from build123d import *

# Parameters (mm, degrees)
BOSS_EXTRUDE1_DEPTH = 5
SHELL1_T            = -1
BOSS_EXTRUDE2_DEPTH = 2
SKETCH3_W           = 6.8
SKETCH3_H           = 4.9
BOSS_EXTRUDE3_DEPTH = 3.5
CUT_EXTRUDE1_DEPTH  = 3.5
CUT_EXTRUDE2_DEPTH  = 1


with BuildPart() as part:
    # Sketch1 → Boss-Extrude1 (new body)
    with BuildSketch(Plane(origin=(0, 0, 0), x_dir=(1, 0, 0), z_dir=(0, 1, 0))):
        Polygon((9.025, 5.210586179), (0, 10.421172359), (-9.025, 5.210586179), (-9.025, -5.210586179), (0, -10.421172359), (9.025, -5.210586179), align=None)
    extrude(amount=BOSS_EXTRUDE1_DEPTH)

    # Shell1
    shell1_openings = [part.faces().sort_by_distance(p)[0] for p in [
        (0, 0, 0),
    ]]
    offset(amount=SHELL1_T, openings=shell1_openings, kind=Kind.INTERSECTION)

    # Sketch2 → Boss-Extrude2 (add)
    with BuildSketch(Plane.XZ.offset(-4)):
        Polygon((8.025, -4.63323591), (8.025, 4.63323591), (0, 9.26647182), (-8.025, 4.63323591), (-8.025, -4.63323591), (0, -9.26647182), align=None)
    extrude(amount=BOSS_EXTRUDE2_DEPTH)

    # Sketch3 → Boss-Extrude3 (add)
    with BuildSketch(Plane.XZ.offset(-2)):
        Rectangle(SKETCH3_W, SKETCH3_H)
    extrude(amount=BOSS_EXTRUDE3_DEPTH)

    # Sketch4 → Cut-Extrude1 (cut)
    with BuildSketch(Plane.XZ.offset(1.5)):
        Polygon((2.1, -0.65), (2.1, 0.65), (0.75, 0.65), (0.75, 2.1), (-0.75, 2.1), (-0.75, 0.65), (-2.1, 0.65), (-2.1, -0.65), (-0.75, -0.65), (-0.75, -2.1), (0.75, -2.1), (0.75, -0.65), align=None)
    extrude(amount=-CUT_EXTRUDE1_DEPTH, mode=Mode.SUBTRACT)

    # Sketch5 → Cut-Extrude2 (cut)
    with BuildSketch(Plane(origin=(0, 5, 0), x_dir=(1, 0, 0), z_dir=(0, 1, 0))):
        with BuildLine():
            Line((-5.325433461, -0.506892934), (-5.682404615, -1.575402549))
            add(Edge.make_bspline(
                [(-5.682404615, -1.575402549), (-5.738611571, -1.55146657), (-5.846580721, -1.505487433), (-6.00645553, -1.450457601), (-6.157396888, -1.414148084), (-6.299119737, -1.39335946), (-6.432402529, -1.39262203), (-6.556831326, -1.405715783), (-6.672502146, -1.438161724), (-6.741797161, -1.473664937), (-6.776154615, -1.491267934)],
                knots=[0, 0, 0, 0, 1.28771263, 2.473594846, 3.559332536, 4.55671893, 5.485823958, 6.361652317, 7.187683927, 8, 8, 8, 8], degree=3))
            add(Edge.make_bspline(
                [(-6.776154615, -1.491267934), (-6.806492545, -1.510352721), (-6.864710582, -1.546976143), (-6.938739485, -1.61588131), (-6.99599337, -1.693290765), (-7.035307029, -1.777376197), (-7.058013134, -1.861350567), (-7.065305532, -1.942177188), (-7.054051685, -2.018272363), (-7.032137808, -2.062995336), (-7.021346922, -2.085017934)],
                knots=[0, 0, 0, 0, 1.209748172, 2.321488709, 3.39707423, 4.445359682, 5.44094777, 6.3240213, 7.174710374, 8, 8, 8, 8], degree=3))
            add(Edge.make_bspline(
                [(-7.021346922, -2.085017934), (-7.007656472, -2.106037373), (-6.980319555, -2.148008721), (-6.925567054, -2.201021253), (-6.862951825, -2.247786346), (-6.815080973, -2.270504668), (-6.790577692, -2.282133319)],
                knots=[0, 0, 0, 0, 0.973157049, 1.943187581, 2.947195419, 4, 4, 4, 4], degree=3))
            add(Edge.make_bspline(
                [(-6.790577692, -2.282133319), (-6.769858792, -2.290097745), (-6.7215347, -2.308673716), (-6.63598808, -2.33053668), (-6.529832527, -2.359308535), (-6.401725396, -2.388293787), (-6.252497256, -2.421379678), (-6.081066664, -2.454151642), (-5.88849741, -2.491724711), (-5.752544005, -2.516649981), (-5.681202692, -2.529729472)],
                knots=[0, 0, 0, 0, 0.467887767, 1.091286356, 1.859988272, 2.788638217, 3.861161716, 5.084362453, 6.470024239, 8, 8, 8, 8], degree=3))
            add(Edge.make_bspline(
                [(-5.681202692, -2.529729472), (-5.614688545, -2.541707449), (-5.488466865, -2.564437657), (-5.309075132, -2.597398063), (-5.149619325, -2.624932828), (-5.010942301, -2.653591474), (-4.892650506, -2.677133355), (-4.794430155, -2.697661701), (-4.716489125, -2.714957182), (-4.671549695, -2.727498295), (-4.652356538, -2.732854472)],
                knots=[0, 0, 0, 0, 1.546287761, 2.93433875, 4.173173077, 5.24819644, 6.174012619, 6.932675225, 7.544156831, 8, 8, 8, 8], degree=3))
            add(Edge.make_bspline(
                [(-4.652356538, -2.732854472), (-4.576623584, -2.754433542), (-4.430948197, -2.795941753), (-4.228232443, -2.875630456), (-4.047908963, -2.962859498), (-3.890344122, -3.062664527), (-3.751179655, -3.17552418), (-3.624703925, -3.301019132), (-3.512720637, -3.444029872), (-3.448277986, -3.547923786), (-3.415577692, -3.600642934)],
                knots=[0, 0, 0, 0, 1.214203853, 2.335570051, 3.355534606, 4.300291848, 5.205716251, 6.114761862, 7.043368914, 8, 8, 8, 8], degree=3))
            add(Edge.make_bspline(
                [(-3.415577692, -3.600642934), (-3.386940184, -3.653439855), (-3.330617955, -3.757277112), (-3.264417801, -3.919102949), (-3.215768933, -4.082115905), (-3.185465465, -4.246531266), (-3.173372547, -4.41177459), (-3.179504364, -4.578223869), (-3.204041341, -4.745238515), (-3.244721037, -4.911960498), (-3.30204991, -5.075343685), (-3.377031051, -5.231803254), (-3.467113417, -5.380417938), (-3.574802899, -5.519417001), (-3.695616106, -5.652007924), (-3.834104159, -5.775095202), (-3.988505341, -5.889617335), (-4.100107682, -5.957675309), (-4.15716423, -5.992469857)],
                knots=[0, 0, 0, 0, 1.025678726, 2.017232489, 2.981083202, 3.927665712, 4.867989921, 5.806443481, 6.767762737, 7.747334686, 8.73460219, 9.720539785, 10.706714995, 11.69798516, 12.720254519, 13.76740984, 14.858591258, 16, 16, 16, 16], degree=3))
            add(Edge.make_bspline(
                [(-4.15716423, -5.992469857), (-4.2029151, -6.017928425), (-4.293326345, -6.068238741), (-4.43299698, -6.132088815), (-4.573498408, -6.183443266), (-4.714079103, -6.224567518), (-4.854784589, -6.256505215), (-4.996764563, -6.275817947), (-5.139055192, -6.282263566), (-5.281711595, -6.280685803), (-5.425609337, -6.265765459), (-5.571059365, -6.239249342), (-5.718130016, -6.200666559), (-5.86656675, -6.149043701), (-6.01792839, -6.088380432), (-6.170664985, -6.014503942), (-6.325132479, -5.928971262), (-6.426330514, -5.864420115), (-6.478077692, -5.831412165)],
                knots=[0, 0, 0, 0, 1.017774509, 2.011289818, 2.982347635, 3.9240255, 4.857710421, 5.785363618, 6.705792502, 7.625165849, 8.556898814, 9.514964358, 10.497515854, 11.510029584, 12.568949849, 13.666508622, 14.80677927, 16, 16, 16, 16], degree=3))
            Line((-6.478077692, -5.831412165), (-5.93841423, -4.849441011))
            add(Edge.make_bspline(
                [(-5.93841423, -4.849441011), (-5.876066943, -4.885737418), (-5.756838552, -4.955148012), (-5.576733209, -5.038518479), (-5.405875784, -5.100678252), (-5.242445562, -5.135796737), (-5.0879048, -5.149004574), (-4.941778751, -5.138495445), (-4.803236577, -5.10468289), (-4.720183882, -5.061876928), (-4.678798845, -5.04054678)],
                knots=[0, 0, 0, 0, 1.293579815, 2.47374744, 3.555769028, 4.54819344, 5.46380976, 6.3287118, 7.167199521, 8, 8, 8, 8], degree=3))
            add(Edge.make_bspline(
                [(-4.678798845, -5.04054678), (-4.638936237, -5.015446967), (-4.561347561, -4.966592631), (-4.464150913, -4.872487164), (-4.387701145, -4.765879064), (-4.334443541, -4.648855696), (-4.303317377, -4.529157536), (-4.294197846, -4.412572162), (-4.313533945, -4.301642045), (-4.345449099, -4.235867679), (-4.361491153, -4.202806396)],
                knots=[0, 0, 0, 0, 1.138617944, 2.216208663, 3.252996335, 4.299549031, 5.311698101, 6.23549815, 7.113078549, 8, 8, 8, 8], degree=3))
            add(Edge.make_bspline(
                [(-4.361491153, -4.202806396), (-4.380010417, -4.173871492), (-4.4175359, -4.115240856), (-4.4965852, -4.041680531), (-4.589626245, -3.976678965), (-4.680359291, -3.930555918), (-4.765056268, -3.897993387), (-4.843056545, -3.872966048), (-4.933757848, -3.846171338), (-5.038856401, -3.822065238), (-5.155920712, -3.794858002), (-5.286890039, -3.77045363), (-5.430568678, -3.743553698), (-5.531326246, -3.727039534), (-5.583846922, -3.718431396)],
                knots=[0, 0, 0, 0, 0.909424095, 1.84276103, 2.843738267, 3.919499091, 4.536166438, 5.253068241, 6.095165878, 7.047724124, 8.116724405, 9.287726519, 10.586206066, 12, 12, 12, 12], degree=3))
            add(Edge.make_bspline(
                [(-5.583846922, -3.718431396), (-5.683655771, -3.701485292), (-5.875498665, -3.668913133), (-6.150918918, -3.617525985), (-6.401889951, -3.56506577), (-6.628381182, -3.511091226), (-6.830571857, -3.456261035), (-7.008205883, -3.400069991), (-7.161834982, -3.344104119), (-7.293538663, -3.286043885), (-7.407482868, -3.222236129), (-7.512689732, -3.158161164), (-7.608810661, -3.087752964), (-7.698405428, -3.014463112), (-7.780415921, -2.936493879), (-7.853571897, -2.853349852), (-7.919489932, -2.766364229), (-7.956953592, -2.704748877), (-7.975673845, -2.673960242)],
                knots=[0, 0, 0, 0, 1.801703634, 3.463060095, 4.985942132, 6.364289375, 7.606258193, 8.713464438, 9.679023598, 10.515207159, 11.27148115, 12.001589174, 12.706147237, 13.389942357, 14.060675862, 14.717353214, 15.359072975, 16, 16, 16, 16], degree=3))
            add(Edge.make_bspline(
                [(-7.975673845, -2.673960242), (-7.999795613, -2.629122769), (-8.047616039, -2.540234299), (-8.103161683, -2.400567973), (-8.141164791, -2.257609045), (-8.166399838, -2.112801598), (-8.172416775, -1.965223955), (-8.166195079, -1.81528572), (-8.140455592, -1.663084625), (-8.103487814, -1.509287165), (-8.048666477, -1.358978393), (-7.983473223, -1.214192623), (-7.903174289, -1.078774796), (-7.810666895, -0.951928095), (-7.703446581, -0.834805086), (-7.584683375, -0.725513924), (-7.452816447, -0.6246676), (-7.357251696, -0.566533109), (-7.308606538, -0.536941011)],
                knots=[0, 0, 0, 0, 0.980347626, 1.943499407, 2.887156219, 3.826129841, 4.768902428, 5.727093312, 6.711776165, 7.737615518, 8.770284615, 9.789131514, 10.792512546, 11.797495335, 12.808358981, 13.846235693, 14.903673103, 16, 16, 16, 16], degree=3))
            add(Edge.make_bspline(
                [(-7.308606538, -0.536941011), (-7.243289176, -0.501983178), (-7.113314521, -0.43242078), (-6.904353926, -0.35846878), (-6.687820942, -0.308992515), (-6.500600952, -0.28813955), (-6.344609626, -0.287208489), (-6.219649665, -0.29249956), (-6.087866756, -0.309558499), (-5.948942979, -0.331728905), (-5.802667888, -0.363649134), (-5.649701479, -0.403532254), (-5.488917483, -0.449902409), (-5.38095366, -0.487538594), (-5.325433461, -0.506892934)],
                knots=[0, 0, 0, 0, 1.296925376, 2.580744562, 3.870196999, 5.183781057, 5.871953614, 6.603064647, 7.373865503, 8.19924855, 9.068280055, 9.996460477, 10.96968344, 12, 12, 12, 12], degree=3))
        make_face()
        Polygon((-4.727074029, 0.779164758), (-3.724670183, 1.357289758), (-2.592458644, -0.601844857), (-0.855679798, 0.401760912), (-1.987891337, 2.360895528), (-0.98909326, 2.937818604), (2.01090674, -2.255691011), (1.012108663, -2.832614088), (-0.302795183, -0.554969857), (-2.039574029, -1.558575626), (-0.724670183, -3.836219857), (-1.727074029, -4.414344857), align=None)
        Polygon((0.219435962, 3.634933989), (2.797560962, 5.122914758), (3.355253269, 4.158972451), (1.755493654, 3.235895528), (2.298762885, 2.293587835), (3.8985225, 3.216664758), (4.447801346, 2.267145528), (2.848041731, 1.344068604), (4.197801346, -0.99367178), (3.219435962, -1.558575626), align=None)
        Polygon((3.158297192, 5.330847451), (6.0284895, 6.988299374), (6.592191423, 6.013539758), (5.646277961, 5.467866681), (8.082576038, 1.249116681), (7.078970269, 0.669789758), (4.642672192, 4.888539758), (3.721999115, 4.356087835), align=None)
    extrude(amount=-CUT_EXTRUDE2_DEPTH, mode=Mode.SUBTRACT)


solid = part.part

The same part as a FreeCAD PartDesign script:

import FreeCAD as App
import Part
import Sketcher
Q = App.Units.Quantity


def faces_at(feature, points):
    """Names of the faces that lie closest to the given points."""
    faces = feature.Shape.Faces
    near = lambda p: min(range(len(faces)), key=lambda i: faces[i].distToShape(Part.Vertex(*p))[0])
    return sorted({f"Face{near(p) + 1}" for p in points})

doc = App.newDocument("Part")
body = doc.addObject("PartDesign::Body", "Body")

# Sketch on XZ plane
sketch1 = body.newObject("Sketcher::SketchObject", "Sketch")
sketch1.AttachmentSupport = (doc.getObject("XZ_Plane"), [""])
sketch1.MapMode = "FlatFace"
sketch1.addGeometry(Part.LineSegment(App.Vector(9, -5, 0), App.Vector(0, -10, 0)), False)
sketch1.addGeometry(Part.LineSegment(App.Vector(0, -10, 0), App.Vector(-9, -5, 0)), False)
sketch1.addGeometry(Part.LineSegment(App.Vector(-9, -5, 0), App.Vector(-9, 5, 0)), False)
sketch1.addGeometry(Part.LineSegment(App.Vector(-9, 5, 0), App.Vector(0, 10, 0)), False)
sketch1.addGeometry(Part.LineSegment(App.Vector(0, 10, 0), App.Vector(9, 5, 0)), False)
sketch1.addGeometry(Part.LineSegment(App.Vector(9, 5, 0), App.Vector(9, -5, 0)), False)
sketch1.addConstraint(Sketcher.Constraint("Coincident", 0, 2, 1, 1))
sketch1.addConstraint(Sketcher.Constraint("Coincident", 1, 2, 2, 1))
sketch1.addConstraint(Sketcher.Constraint("Coincident", 2, 2, 3, 1))
sketch1.addConstraint(Sketcher.Constraint("Coincident", 3, 2, 4, 1))
sketch1.addConstraint(Sketcher.Constraint("Coincident", 4, 2, 5, 1))
sketch1.addConstraint(Sketcher.Constraint("Coincident", 5, 2, 0, 1))
sketch1.addConstraint(Sketcher.Constraint("Vertical", 2))
sketch1.addConstraint(Sketcher.Constraint("Vertical", 5))
sketch1.addConstraint(Sketcher.Constraint("Symmetric", 0, 2, 3, 2, -1, 1))
sketch1.addConstraint(Sketcher.Constraint("Symmetric", 1, 2, 4, 2, -1, 1))
sketch1.addConstraint(Sketcher.Constraint("PointOnObject", 0, 2, -2))
sketch1.addConstraint(Sketcher.Constraint("Parallel", 0, 3))
sketch1.addConstraint(Sketcher.Constraint("Horizontal", 2, 2, 4, 2))
sketch1.addConstraint(Sketcher.Constraint("Angle", 0, Q("-150 deg")))
sketch1.addConstraint(Sketcher.Constraint("DistanceX", 2, 2, 4, 2, 18.05))
sketch1.addConstraint(Sketcher.Constraint("DistanceY", 2, 1, 2, 2, 10.421172))
pad1 = body.newObject("PartDesign::Pad", "Pad")
pad1.Profile = sketch1
pad1.Length = 5
pad1.Reversed = True
doc.recompute()

thickness = body.newObject("PartDesign::Thickness", "Thickness")
thickness.Base = (pad1, faces_at(pad1, [(0, 0, 0)]))
thickness.Value = 1
thickness.Reversed = True
thickness.Join = "Intersection"

# Sketch on XZ plane
sketch2 = body.newObject("Sketcher::SketchObject", "Sketch001")
sketch2.AttachmentSupport = (doc.getObject("XZ_Plane"), [""])
sketch2.MapMode = "FlatFace"
sketch2.AttachmentOffset = App.Placement(App.Vector(0, 0, -4), App.Rotation())
sketch2.addGeometry(Part.LineSegment(App.Vector(8, -5, 0), App.Vector(8, 5, 0)), False)
sketch2.addGeometry(Part.LineSegment(App.Vector(8, 5, 0), App.Vector(0, 9, 0)), False)
sketch2.addGeometry(Part.LineSegment(App.Vector(0, 9, 0), App.Vector(-8, 5, 0)), False)
sketch2.addGeometry(Part.LineSegment(App.Vector(-8, 5, 0), App.Vector(-8, -5, 0)), False)
sketch2.addGeometry(Part.LineSegment(App.Vector(-8, -5, 0), App.Vector(0, -9, 0)), False)
sketch2.addGeometry(Part.LineSegment(App.Vector(0, -9, 0), App.Vector(8, -5, 0)), False)
sketch2.addConstraint(Sketcher.Constraint("Coincident", 0, 2, 1, 1))
sketch2.addConstraint(Sketcher.Constraint("Coincident", 1, 2, 2, 1))
sketch2.addConstraint(Sketcher.Constraint("Coincident", 2, 2, 3, 1))
sketch2.addConstraint(Sketcher.Constraint("Coincident", 3, 2, 4, 1))
sketch2.addConstraint(Sketcher.Constraint("Coincident", 4, 2, 5, 1))
sketch2.addConstraint(Sketcher.Constraint("Coincident", 5, 2, 0, 1))
sketch2.addConstraint(Sketcher.Constraint("Vertical", 0))
sketch2.addConstraint(Sketcher.Constraint("Vertical", 3))
sketch2.addConstraint(Sketcher.Constraint("Symmetric", 0, 2, 3, 2, -1, 1))
sketch2.addConstraint(Sketcher.Constraint("Symmetric", 1, 2, 4, 2, -1, 1))
sketch2.addConstraint(Sketcher.Constraint("PointOnObject", 1, 2, -2))
sketch2.addConstraint(Sketcher.Constraint("Parallel", 2, 5))
sketch2.addConstraint(Sketcher.Constraint("Horizontal", 0, 2, 2, 2))
sketch2.addConstraint(Sketcher.Constraint("Angle", 1, Q("150 deg")))
sketch2.addConstraint(Sketcher.Constraint("DistanceX", 2, 2, 0, 2, 16.05))
sketch2.addConstraint(Sketcher.Constraint("DistanceY", 0, 1, 0, 2, 9.266472))
pad2 = body.newObject("PartDesign::Pad", "Pad001")
pad2.Profile = sketch2
pad2.Length = 2

# Sketch on XZ plane
sketch3 = body.newObject("Sketcher::SketchObject", "Sketch002")
sketch3.AttachmentSupport = (doc.getObject("XZ_Plane"), [""])
sketch3.MapMode = "FlatFace"
sketch3.AttachmentOffset = App.Placement(App.Vector(0, 0, -2), App.Rotation())
sketch3.addGeometry(Part.LineSegment(App.Vector(-3.4, 2.5, 0), App.Vector(-3.4, -2.5, 0)), False)
sketch3.addGeometry(Part.LineSegment(App.Vector(-3.4, -2.5, 0), App.Vector(3.4, -2.5, 0)), False)
sketch3.addGeometry(Part.LineSegment(App.Vector(3.4, -2.5, 0), App.Vector(3.4, 2.5, 0)), False)
sketch3.addGeometry(Part.LineSegment(App.Vector(3.4, 2.5, 0), App.Vector(-3.4, 2.5, 0)), False)
sketch3.addConstraint(Sketcher.Constraint("Coincident", 0, 2, 1, 1))
sketch3.addConstraint(Sketcher.Constraint("Coincident", 1, 2, 2, 1))
sketch3.addConstraint(Sketcher.Constraint("Coincident", 2, 2, 3, 1))
sketch3.addConstraint(Sketcher.Constraint("Coincident", 3, 2, 0, 1))
sketch3.addConstraint(Sketcher.Constraint("Vertical", 0))
sketch3.addConstraint(Sketcher.Constraint("Horizontal", 1))
sketch3.addConstraint(Sketcher.Constraint("Vertical", 2))
sketch3.addConstraint(Sketcher.Constraint("Horizontal", 3))
sketch3.addConstraint(Sketcher.Constraint("Symmetric", 0, 2, 2, 2, -1, 1))
sketch3.addConstraint(Sketcher.Constraint("DistanceX", 1, 1, 1, 2, 6.8))
sketch3.addConstraint(Sketcher.Constraint("DistanceY", 0, 2, 0, 1, 4.9))
pad3 = body.newObject("PartDesign::Pad", "Pad002")
pad3.Profile = sketch3
pad3.Length = 3.5

# Sketch on XZ plane
sketch4 = body.newObject("Sketcher::SketchObject", "Sketch003")
sketch4.AttachmentSupport = (doc.getObject("XZ_Plane"), [""])
sketch4.MapMode = "FlatFace"
sketch4.AttachmentOffset = App.Placement(App.Vector(0, 0, 1.5), App.Rotation())
sketch4.addGeometry(Part.LineSegment(App.Vector(2.1, -0.7, 0), App.Vector(2.1, 0.7, 0)), False)
sketch4.addGeometry(Part.LineSegment(App.Vector(2.1, 0.7, 0), App.Vector(0.8, 0.7, 0)), False)
sketch4.addGeometry(Part.LineSegment(App.Vector(0.8, 0.7, 0), App.Vector(0.8, 2.1, 0)), False)
sketch4.addGeometry(Part.LineSegment(App.Vector(0.8, 2.1, 0), App.Vector(-0.8, 2.1, 0)), False)
sketch4.addGeometry(Part.LineSegment(App.Vector(-0.8, 2.1, 0), App.Vector(-0.8, 0.7, 0)), False)
sketch4.addGeometry(Part.LineSegment(App.Vector(-0.8, 0.7, 0), App.Vector(-2.1, 0.7, 0)), False)
sketch4.addGeometry(Part.LineSegment(App.Vector(-2.1, 0.7, 0), App.Vector(-2.1, -0.7, 0)), False)
sketch4.addGeometry(Part.LineSegment(App.Vector(-2.1, -0.7, 0), App.Vector(-0.8, -0.7, 0)), False)
sketch4.addGeometry(Part.LineSegment(App.Vector(-0.8, -0.7, 0), App.Vector(-0.8, -2.1, 0)), False)
sketch4.addGeometry(Part.LineSegment(App.Vector(-0.8, -2.1, 0), App.Vector(0.8, -2.1, 0)), False)
sketch4.addGeometry(Part.LineSegment(App.Vector(0.8, -2.1, 0), App.Vector(0.8, -0.7, 0)), False)
sketch4.addGeometry(Part.LineSegment(App.Vector(0.8, -0.7, 0), App.Vector(2.1, -0.7, 0)), False)
sketch4.addConstraint(Sketcher.Constraint("Coincident", 0, 2, 1, 1))
sketch4.addConstraint(Sketcher.Constraint("Coincident", 1, 2, 2, 1))
sketch4.addConstraint(Sketcher.Constraint("Coincident", 2, 2, 3, 1))
sketch4.addConstraint(Sketcher.Constraint("Coincident", 3, 2, 4, 1))
sketch4.addConstraint(Sketcher.Constraint("Coincident", 4, 2, 5, 1))
sketch4.addConstraint(Sketcher.Constraint("Coincident", 5, 2, 6, 1))
sketch4.addConstraint(Sketcher.Constraint("Coincident", 6, 2, 7, 1))
sketch4.addConstraint(Sketcher.Constraint("Coincident", 7, 2, 8, 1))
sketch4.addConstraint(Sketcher.Constraint("Coincident", 8, 2, 9, 1))
sketch4.addConstraint(Sketcher.Constraint("Coincident", 9, 2, 10, 1))
sketch4.addConstraint(Sketcher.Constraint("Coincident", 10, 2, 11, 1))
sketch4.addConstraint(Sketcher.Constraint("Coincident", 11, 2, 0, 1))
sketch4.addConstraint(Sketcher.Constraint("Vertical", 0))
sketch4.addConstraint(Sketcher.Constraint("Horizontal", 1))
sketch4.addConstraint(Sketcher.Constraint("Vertical", 2))
sketch4.addConstraint(Sketcher.Constraint("Horizontal", 3))
sketch4.addConstraint(Sketcher.Constraint("Vertical", 4))
sketch4.addConstraint(Sketcher.Constraint("Horizontal", 5))
sketch4.addConstraint(Sketcher.Constraint("Vertical", 6))
sketch4.addConstraint(Sketcher.Constraint("Horizontal", 7))
sketch4.addConstraint(Sketcher.Constraint("Vertical", 8))
sketch4.addConstraint(Sketcher.Constraint("Horizontal", 9))
sketch4.addConstraint(Sketcher.Constraint("Vertical", 10))
sketch4.addConstraint(Sketcher.Constraint("Horizontal", 11))
sketch4.addConstraint(Sketcher.Constraint("Symmetric", 0, 2, 6, 2, -1, 1))
sketch4.addConstraint(Sketcher.Constraint("Symmetric", 2, 2, 8, 2, -1, 1))
sketch4.addConstraint(Sketcher.Constraint("Symmetric", 4, 2, 10, 2, -1, 1))
sketch4.addConstraint(Sketcher.Constraint("Symmetric", 1, 2, 4, 2, -2))
sketch4.addConstraint(Sketcher.Constraint("DistanceX", 3, 2, 3, 1, 1.5))
sketch4.addConstraint(Sketcher.Constraint("DistanceY", 0, 1, 0, 2, 1.3))
sketch4.addConstraint(Sketcher.Constraint("DistanceX", 1, 2, 1, 1, 1.35))
sketch4.addConstraint(Sketcher.Constraint("DistanceY", 2, 1, 2, 2, 1.45))
pocket1 = body.newObject("PartDesign::Pocket", "Pocket")
pocket1.Profile = sketch4
pocket1.Length = 3.5

# Sketch on XZ plane
sketch5 = body.newObject("Sketcher::SketchObject", "Sketch004")
sketch5.AttachmentSupport = (doc.getObject("XZ_Plane"), [""])
sketch5.MapMode = "FlatFace"
sketch5.AttachmentOffset = App.Placement(App.Vector(0, 0, -5), App.Rotation())
sketch5.addGeometry(Part.LineSegment(App.Vector(-5.682405, 1.575403, 0), App.Vector(-5.325433, 0.506893, 0)), False)
sketch5.addGeometry(Part.BSplineCurve([App.Vector(-7.308607, 0.536941, 0), App.Vector(-7.243289, 0.501983, 0), App.Vector(-7.113315, 0.432421, 0), App.Vector(-6.904354, 0.358469, 0), App.Vector(-6.687821, 0.308993, 0), App.Vector(-6.500601, 0.28814, 0), App.Vector(-6.34461, 0.287208, 0), App.Vector(-6.21965, 0.2925, 0), App.Vector(-6.087867, 0.309558, 0), App.Vector(-5.948943, 0.331729, 0), App.Vector(-5.802668, 0.363649, 0), App.Vector(-5.649701, 0.403532, 0), App.Vector(-5.488917, 0.449902, 0), App.Vector(-5.380954, 0.487539, 0), App.Vector(-5.325433, 0.506893, 0)], [4, 1, 1, 1, 1, 1, 1, 1, 1, 1, 1, 1, 4], [0, 1.296925376, 2.580744562, 3.870196999, 5.183781057, 5.871953614, 6.603064647, 7.373865503, 8.19924855, 9.068280055, 9.996460477, 10.96968344, 12], False, 3, [1, 1, 1, 1, 1, 1, 1, 1, 1, 1, 1, 1, 1, 1, 1], False), False)
sketch5.addGeometry(Part.BSplineCurve([App.Vector(-7.975674, 2.67396, 0), App.Vector(-7.999796, 2.629123, 0), App.Vector(-8.047616, 2.540234, 0), App.Vector(-8.103162, 2.400568, 0), App.Vector(-8.141165, 2.257609, 0), App.Vector(-8.1664, 2.112802, 0), App.Vector(-8.172417, 1.965224, 0), App.Vector(-8.166195, 1.815286, 0), App.Vector(-8.140456, 1.663085, 0), App.Vector(-8.103488, 1.509287, 0), App.Vector(-8.048666, 1.358978, 0), App.Vector(-7.983473, 1.214193, 0), App.Vector(-7.903174, 1.078775, 0), App.Vector(-7.810667, 0.951928, 0), App.Vector(-7.703447, 0.834805, 0), App.Vector(-7.584683, 0.725514, 0), App.Vector(-7.452816, 0.624668, 0), App.Vector(-7.357252, 0.566533, 0), App.Vector(-7.308607, 0.536941, 0)], [4, 1, 1, 1, 1, 1, 1, 1, 1, 1, 1, 1, 1, 1, 1, 1, 4], [0, 0.980347626, 1.943499407, 2.887156219, 3.826129841, 4.768902428, 5.727093312, 6.711776165, 7.737615518, 8.770284615, 9.789131514, 10.792512546, 11.797495335, 12.808358981, 13.846235693, 14.903673103, 16], False, 3, [1, 1, 1, 1, 1, 1, 1, 1, 1, 1, 1, 1, 1, 1, 1, 1, 1, 1, 1], False), False)
sketch5.addGeometry(Part.BSplineCurve([App.Vector(-5.583847, 3.718431, 0), App.Vector(-5.683656, 3.701485, 0), App.Vector(-5.875499, 3.668913, 0), App.Vector(-6.150919, 3.617526, 0), App.Vector(-6.40189, 3.565066, 0), App.Vector(-6.628381, 3.511091, 0), App.Vector(-6.830572, 3.456261, 0), App.Vector(-7.008206, 3.40007, 0), App.Vector(-7.161835, 3.344104, 0), App.Vector(-7.293539, 3.286044, 0), App.Vector(-7.407483, 3.222236, 0), App.Vector(-7.51269, 3.158161, 0), App.Vector(-7.608811, 3.087753, 0), App.Vector(-7.698405, 3.014463, 0), App.Vector(-7.780416, 2.936494, 0), App.Vector(-7.853572, 2.85335, 0), App.Vector(-7.91949, 2.766364, 0), App.Vector(-7.956954, 2.704749, 0), App.Vector(-7.975674, 2.67396, 0)], [4, 1, 1, 1, 1, 1, 1, 1, 1, 1, 1, 1, 1, 1, 1, 1, 4], [0, 1.801703634, 3.463060095, 4.985942132, 6.364289375, 7.606258193, 8.713464438, 9.679023598, 10.515207159, 11.27148115, 12.001589174, 12.706147237, 13.389942357, 14.060675862, 14.717353214, 15.359072975, 16], False, 3, [1, 1, 1, 1, 1, 1, 1, 1, 1, 1, 1, 1, 1, 1, 1, 1, 1, 1, 1], False), False)
sketch5.addGeometry(Part.BSplineCurve([App.Vector(-4.361491, 4.202806, 0), App.Vector(-4.38001, 4.173871, 0), App.Vector(-4.417536, 4.115241, 0), App.Vector(-4.496585, 4.041681, 0), App.Vector(-4.589626, 3.976679, 0), App.Vector(-4.680359, 3.930556, 0), App.Vector(-4.765056, 3.897993, 0), App.Vector(-4.843057, 3.872966, 0), App.Vector(-4.933758, 3.846171, 0), App.Vector(-5.038856, 3.822065, 0), App.Vector(-5.155921, 3.794858, 0), App.Vector(-5.28689, 3.770454, 0), App.Vector(-5.430569, 3.743554, 0), App.Vector(-5.531326, 3.72704, 0), App.Vector(-5.583847, 3.718431, 0)], [4, 1, 1, 1, 1, 1, 1, 1, 1, 1, 1, 1, 4], [0, 0.909424095, 1.84276103, 2.843738267, 3.919499091, 4.536166438, 5.253068241, 6.095165878, 7.047724124, 8.116724405, 9.287726519, 10.586206066, 12], False, 3, [1, 1, 1, 1, 1, 1, 1, 1, 1, 1, 1, 1, 1, 1, 1], False), False)
sketch5.addGeometry(Part.BSplineCurve([App.Vector(-4.678799, 5.040547, 0), App.Vector(-4.638936, 5.015447, 0), App.Vector(-4.561348, 4.966593, 0), App.Vector(-4.464151, 4.872487, 0), App.Vector(-4.387701, 4.765879, 0), App.Vector(-4.334444, 4.648856, 0), App.Vector(-4.303317, 4.529158, 0), App.Vector(-4.294198, 4.412572, 0), App.Vector(-4.313534, 4.301642, 0), App.Vector(-4.345449, 4.235868, 0), App.Vector(-4.361491, 4.202806, 0)], [4, 1, 1, 1, 1, 1, 1, 1, 4], [0, 1.138617944, 2.216208663, 3.252996335, 4.299549031, 5.311698101, 6.23549815, 7.113078549, 8], False, 3, [1, 1, 1, 1, 1, 1, 1, 1, 1, 1, 1], False), False)
sketch5.addGeometry(Part.BSplineCurve([App.Vector(-5.938414, 4.849441, 0), App.Vector(-5.876067, 4.885737, 0), App.Vector(-5.756839, 4.955148, 0), App.Vector(-5.576733, 5.038518, 0), App.Vector(-5.405876, 5.100678, 0), App.Vector(-5.242446, 5.135797, 0), App.Vector(-5.087905, 5.149005, 0), App.Vector(-4.941779, 5.138495, 0), App.Vector(-4.803237, 5.104683, 0), App.Vector(-4.720184, 5.061877, 0), App.Vector(-4.678799, 5.040547, 0)], [4, 1, 1, 1, 1, 1, 1, 1, 4], [0, 1.293579815, 2.47374744, 3.555769028, 4.54819344, 5.46380976, 6.3287118, 7.167199521, 8], False, 3, [1, 1, 1, 1, 1, 1, 1, 1, 1, 1, 1], False), False)
sketch5.addGeometry(Part.LineSegment(App.Vector(-5.938414, 4.849441, 0), App.Vector(-6.478078, 5.831412, 0)), False)
sketch5.addGeometry(Part.BSplineCurve([App.Vector(-4.157164, 5.99247, 0), App.Vector(-4.202915, 6.017928, 0), App.Vector(-4.293326, 6.068239, 0), App.Vector(-4.432997, 6.132089, 0), App.Vector(-4.573498, 6.183443, 0), App.Vector(-4.714079, 6.224568, 0), App.Vector(-4.854785, 6.256505, 0), App.Vector(-4.996765, 6.275818, 0), App.Vector(-5.139055, 6.282264, 0), App.Vector(-5.281712, 6.280686, 0), App.Vector(-5.425609, 6.265765, 0), App.Vector(-5.571059, 6.239249, 0), App.Vector(-5.71813, 6.200667, 0), App.Vector(-5.866567, 6.149044, 0), App.Vector(-6.017928, 6.08838, 0), App.Vector(-6.170665, 6.014504, 0), App.Vector(-6.325132, 5.928971, 0), App.Vector(-6.426331, 5.86442, 0), App.Vector(-6.478078, 5.831412, 0)], [4, 1, 1, 1, 1, 1, 1, 1, 1, 1, 1, 1, 1, 1, 1, 1, 4], [0, 1.017774509, 2.011289818, 2.982347635, 3.9240255, 4.857710421, 5.785363618, 6.705792502, 7.625165849, 8.556898814, 9.514964358, 10.497515854, 11.510029584, 12.568949849, 13.666508622, 14.80677927, 16], False, 3, [1, 1, 1, 1, 1, 1, 1, 1, 1, 1, 1, 1, 1, 1, 1, 1, 1, 1, 1], False), False)
sketch5.addGeometry(Part.BSplineCurve([App.Vector(-3.415578, 3.600643, 0), App.Vector(-3.38694, 3.65344, 0), App.Vector(-3.330618, 3.757277, 0), App.Vector(-3.264418, 3.919103, 0), App.Vector(-3.215769, 4.082116, 0), App.Vector(-3.185465, 4.246531, 0), App.Vector(-3.173373, 4.411775, 0), App.Vector(-3.179504, 4.578224, 0), App.Vector(-3.204041, 4.745239, 0), App.Vector(-3.244721, 4.91196, 0), App.Vector(-3.30205, 5.075344, 0), App.Vector(-3.377031, 5.231803, 0), App.Vector(-3.467113, 5.380418, 0), App.Vector(-3.574803, 5.519417, 0), App.Vector(-3.695616, 5.652008, 0), App.Vector(-3.834104, 5.775095, 0), App.Vector(-3.988505, 5.889617, 0), App.Vector(-4.100108, 5.957675, 0), App.Vector(-4.157164, 5.99247, 0)], [4, 1, 1, 1, 1, 1, 1, 1, 1, 1, 1, 1, 1, 1, 1, 1, 4], [0, 1.025678726, 2.017232489, 2.981083202, 3.927665712, 4.867989921, 5.806443481, 6.767762737, 7.747334686, 8.73460219, 9.720539785, 10.706714995, 11.69798516, 12.720254519, 13.76740984, 14.858591258, 16], False, 3, [1, 1, 1, 1, 1, 1, 1, 1, 1, 1, 1, 1, 1, 1, 1, 1, 1, 1, 1], False), False)
sketch5.addGeometry(Part.BSplineCurve([App.Vector(-4.652357, 2.732854, 0), App.Vector(-4.576624, 2.754434, 0), App.Vector(-4.430948, 2.795942, 0), App.Vector(-4.228232, 2.87563, 0), App.Vector(-4.047909, 2.962859, 0), App.Vector(-3.890344, 3.062665, 0), App.Vector(-3.75118, 3.175524, 0), App.Vector(-3.624704, 3.301019, 0), App.Vector(-3.512721, 3.44403, 0), App.Vector(-3.448278, 3.547924, 0), App.Vector(-3.415578, 3.600643, 0)], [4, 1, 1, 1, 1, 1, 1, 1, 4], [0, 1.214203853, 2.335570051, 3.355534606, 4.300291848, 5.205716251, 6.114761862, 7.043368914, 8], False, 3, [1, 1, 1, 1, 1, 1, 1, 1, 1, 1, 1], False), False)
sketch5.addGeometry(Part.BSplineCurve([App.Vector(-5.681203, 2.529729, 0), App.Vector(-5.614689, 2.541707, 0), App.Vector(-5.488467, 2.564438, 0), App.Vector(-5.309075, 2.597398, 0), App.Vector(-5.149619, 2.624933, 0), App.Vector(-5.010942, 2.653591, 0), App.Vector(-4.892651, 2.677133, 0), App.Vector(-4.79443, 2.697662, 0), App.Vector(-4.716489, 2.714957, 0), App.Vector(-4.67155, 2.727498, 0), App.Vector(-4.652357, 2.732854, 0)], [4, 1, 1, 1, 1, 1, 1, 1, 4], [0, 1.546287761, 2.93433875, 4.173173077, 5.24819644, 6.174012619, 6.932675225, 7.544156831, 8], False, 3, [1, 1, 1, 1, 1, 1, 1, 1, 1, 1, 1], False), False)
sketch5.addGeometry(Part.BSplineCurve([App.Vector(-6.790578, 2.282133, 0), App.Vector(-6.769859, 2.290098, 0), App.Vector(-6.721535, 2.308674, 0), App.Vector(-6.635988, 2.330537, 0), App.Vector(-6.529833, 2.359309, 0), App.Vector(-6.401725, 2.388294, 0), App.Vector(-6.252497, 2.42138, 0), App.Vector(-6.081067, 2.454152, 0), App.Vector(-5.888497, 2.491725, 0), App.Vector(-5.752544, 2.51665, 0), App.Vector(-5.681203, 2.529729, 0)], [4, 1, 1, 1, 1, 1, 1, 1, 4], [0, 0.467887767, 1.091286356, 1.859988272, 2.788638217, 3.861161716, 5.084362453, 6.470024239, 8], False, 3, [1, 1, 1, 1, 1, 1, 1, 1, 1, 1, 1], False), False)
sketch5.addGeometry(Part.BSplineCurve([App.Vector(-7.021347, 2.085018, 0), App.Vector(-7.007656, 2.106037, 0), App.Vector(-6.98032, 2.148009, 0), App.Vector(-6.925567, 2.201021, 0), App.Vector(-6.862952, 2.247786, 0), App.Vector(-6.815081, 2.270505, 0), App.Vector(-6.790578, 2.282133, 0)], [4, 1, 1, 1, 4], [0, 0.973157049, 1.943187581, 2.947195419, 4], False, 3, [1, 1, 1, 1, 1, 1, 1], False), False)
sketch5.addGeometry(Part.BSplineCurve([App.Vector(-6.776155, 1.491268, 0), App.Vector(-6.806493, 1.510353, 0), App.Vector(-6.864711, 1.546976, 0), App.Vector(-6.938739, 1.615881, 0), App.Vector(-6.995993, 1.693291, 0), App.Vector(-7.035307, 1.777376, 0), App.Vector(-7.058013, 1.861351, 0), App.Vector(-7.065306, 1.942177, 0), App.Vector(-7.054052, 2.018272, 0), App.Vector(-7.032138, 2.062995, 0), App.Vector(-7.021347, 2.085018, 0)], [4, 1, 1, 1, 1, 1, 1, 1, 4], [0, 1.209748172, 2.321488709, 3.39707423, 4.445359682, 5.44094777, 6.3240213, 7.174710374, 8], False, 3, [1, 1, 1, 1, 1, 1, 1, 1, 1, 1, 1], False), False)
sketch5.addGeometry(Part.BSplineCurve([App.Vector(-5.682405, 1.575403, 0), App.Vector(-5.738612, 1.551467, 0), App.Vector(-5.846581, 1.505487, 0), App.Vector(-6.006456, 1.450458, 0), App.Vector(-6.157397, 1.414148, 0), App.Vector(-6.29912, 1.393359, 0), App.Vector(-6.432403, 1.392622, 0), App.Vector(-6.556831, 1.405716, 0), App.Vector(-6.672502, 1.438162, 0), App.Vector(-6.741797, 1.473665, 0), App.Vector(-6.776155, 1.491268, 0)], [4, 1, 1, 1, 1, 1, 1, 1, 4], [0, 1.28771263, 2.473594846, 3.559332536, 4.55671893, 5.485823958, 6.361652317, 7.187683927, 8], False, 3, [1, 1, 1, 1, 1, 1, 1, 1, 1, 1, 1], False), False)
sketch5.addGeometry(Part.LineSegment(App.Vector(-3.72467, -1.35729, 0), App.Vector(-4.727074, -0.779165, 0)), False)
sketch5.addGeometry(Part.LineSegment(App.Vector(-4.727074, -0.779165, 0), App.Vector(-1.727074, 4.414345, 0)), False)
sketch5.addGeometry(Part.LineSegment(App.Vector(-1.727074, 4.414345, 0), App.Vector(-0.72467, 3.83622, 0)), False)
sketch5.addGeometry(Part.LineSegment(App.Vector(-0.72467, 3.83622, 0), App.Vector(-2.039574, 1.558576, 0)), False)
sketch5.addGeometry(Part.LineSegment(App.Vector(-2.039574, 1.558576, 0), App.Vector(-0.302795, 0.55497, 0)), False)
sketch5.addGeometry(Part.LineSegment(App.Vector(-0.302795, 0.55497, 0), App.Vector(1.012109, 2.832614, 0)), False)
sketch5.addGeometry(Part.LineSegment(App.Vector(1.012109, 2.832614, 0), App.Vector(2.010907, 2.255691, 0)), False)
sketch5.addGeometry(Part.LineSegment(App.Vector(2.010907, 2.255691, 0), App.Vector(-0.989093, -2.937819, 0)), False)
sketch5.addGeometry(Part.LineSegment(App.Vector(-0.989093, -2.937819, 0), App.Vector(-1.987891, -2.360896, 0)), False)
sketch5.addGeometry(Part.LineSegment(App.Vector(-1.987891, -2.360896, 0), App.Vector(-0.85568, -0.401761, 0)), False)
sketch5.addGeometry(Part.LineSegment(App.Vector(-0.85568, -0.401761, 0), App.Vector(-2.592459, 0.601845, 0)), False)
sketch5.addGeometry(Part.LineSegment(App.Vector(-2.592459, 0.601845, 0), App.Vector(-3.72467, -1.35729, 0)), False)
sketch5.addGeometry(Part.LineSegment(App.Vector(2.797561, -5.122915, 0), App.Vector(0.219436, -3.634934, 0)), False)
sketch5.addGeometry(Part.LineSegment(App.Vector(0.219436, -3.634934, 0), App.Vector(3.219436, 1.558576, 0)), False)
sketch5.addGeometry(Part.LineSegment(App.Vector(3.219436, 1.558576, 0), App.Vector(4.197801, 0.993672, 0)), False)
sketch5.addGeometry(Part.LineSegment(App.Vector(4.197801, 0.993672, 0), App.Vector(2.848042, -1.344069, 0)), False)
sketch5.addGeometry(Part.LineSegment(App.Vector(2.848042, -1.344069, 0), App.Vector(4.447801, -2.267146, 0)), False)
sketch5.addGeometry(Part.LineSegment(App.Vector(4.447801, -2.267146, 0), App.Vector(3.898522, -3.216665, 0)), False)
sketch5.addGeometry(Part.LineSegment(App.Vector(3.898522, -3.216665, 0), App.Vector(2.298763, -2.293588, 0)), False)
sketch5.addGeometry(Part.LineSegment(App.Vector(2.298763, -2.293588, 0), App.Vector(1.755494, -3.235896, 0)), False)
sketch5.addGeometry(Part.LineSegment(App.Vector(1.755494, -3.235896, 0), App.Vector(3.355253, -4.158972, 0)), False)
sketch5.addGeometry(Part.LineSegment(App.Vector(3.355253, -4.158972, 0), App.Vector(2.797561, -5.122915, 0)), False)
sketch5.addGeometry(Part.LineSegment(App.Vector(6.02849, -6.988299, 0), App.Vector(3.158297, -5.330847, 0)), False)
sketch5.addGeometry(Part.LineSegment(App.Vector(3.158297, -5.330847, 0), App.Vector(3.721999, -4.356088, 0)), False)
sketch5.addGeometry(Part.LineSegment(App.Vector(3.721999, -4.356088, 0), App.Vector(4.642672, -4.88854, 0)), False)
sketch5.addGeometry(Part.LineSegment(App.Vector(4.642672, -4.88854, 0), App.Vector(7.07897, -0.66979, 0)), False)
sketch5.addGeometry(Part.LineSegment(App.Vector(7.07897, -0.66979, 0), App.Vector(8.082576, -1.249117, 0)), False)
sketch5.addGeometry(Part.LineSegment(App.Vector(8.082576, -1.249117, 0), App.Vector(5.646278, -5.467867, 0)), False)
sketch5.addGeometry(Part.LineSegment(App.Vector(5.646278, -5.467867, 0), App.Vector(6.592191, -6.01354, 0)), False)
sketch5.addGeometry(Part.LineSegment(App.Vector(6.592191, -6.01354, 0), App.Vector(6.02849, -6.988299, 0)), False)
sketch5.addConstraint(Sketcher.Constraint("Block", 1))
sketch5.addConstraint(Sketcher.Constraint("Block", 2))
sketch5.addConstraint(Sketcher.Constraint("Block", 3))
sketch5.addConstraint(Sketcher.Constraint("Block", 4))
sketch5.addConstraint(Sketcher.Constraint("Block", 5))
sketch5.addConstraint(Sketcher.Constraint("Block", 6))
sketch5.addConstraint(Sketcher.Constraint("Block", 8))
sketch5.addConstraint(Sketcher.Constraint("Block", 9))
sketch5.addConstraint(Sketcher.Constraint("Block", 10))
sketch5.addConstraint(Sketcher.Constraint("Block", 11))
sketch5.addConstraint(Sketcher.Constraint("Block", 12))
sketch5.addConstraint(Sketcher.Constraint("Block", 13))
sketch5.addConstraint(Sketcher.Constraint("Block", 14))
sketch5.addConstraint(Sketcher.Constraint("Block", 15))
sketch5.addConstraint(Sketcher.Constraint("Coincident", 0, 2, 1, 2))
sketch5.addConstraint(Sketcher.Constraint("Coincident", 6, 1, 7, 1))
sketch5.addConstraint(Sketcher.Constraint("Coincident", 7, 2, 8, 2))
sketch5.addConstraint(Sketcher.Constraint("Coincident", 15, 1, 0, 1))
sketch5.addConstraint(Sketcher.Constraint("Coincident", 16, 2, 17, 1))
sketch5.addConstraint(Sketcher.Constraint("Coincident", 17, 2, 18, 1))
sketch5.addConstraint(Sketcher.Constraint("Coincident", 18, 2, 19, 1))
sketch5.addConstraint(Sketcher.Constraint("Coincident", 19, 2, 20, 1))
sketch5.addConstraint(Sketcher.Constraint("Coincident", 20, 2, 21, 1))
sketch5.addConstraint(Sketcher.Constraint("Coincident", 21, 2, 22, 1))
sketch5.addConstraint(Sketcher.Constraint("Coincident", 22, 2, 23, 1))
sketch5.addConstraint(Sketcher.Constraint("Coincident", 23, 2, 24, 1))
sketch5.addConstraint(Sketcher.Constraint("Coincident", 24, 2, 25, 1))
sketch5.addConstraint(Sketcher.Constraint("Coincident", 25, 2, 26, 1))
sketch5.addConstraint(Sketcher.Constraint("Coincident", 26, 2, 27, 1))
sketch5.addConstraint(Sketcher.Constraint("Coincident", 27, 2, 16, 1))
sketch5.addConstraint(Sketcher.Constraint("Coincident", 28, 2, 29, 1))
sketch5.addConstraint(Sketcher.Constraint("Coincident", 29, 2, 30, 1))
sketch5.addConstraint(Sketcher.Constraint("Coincident", 30, 2, 31, 1))
sketch5.addConstraint(Sketcher.Constraint("Coincident", 31, 2, 32, 1))
sketch5.addConstraint(Sketcher.Constraint("Coincident", 32, 2, 33, 1))
sketch5.addConstraint(Sketcher.Constraint("Coincident", 33, 2, 34, 1))
sketch5.addConstraint(Sketcher.Constraint("Coincident", 34, 2, 35, 1))
sketch5.addConstraint(Sketcher.Constraint("Coincident", 35, 2, 36, 1))
sketch5.addConstraint(Sketcher.Constraint("Coincident", 36, 2, 37, 1))
sketch5.addConstraint(Sketcher.Constraint("Coincident", 37, 2, 28, 1))
sketch5.addConstraint(Sketcher.Constraint("Coincident", 38, 2, 39, 1))
sketch5.addConstraint(Sketcher.Constraint("Coincident", 39, 2, 40, 1))
sketch5.addConstraint(Sketcher.Constraint("Coincident", 40, 2, 41, 1))
sketch5.addConstraint(Sketcher.Constraint("Coincident", 41, 2, 42, 1))
sketch5.addConstraint(Sketcher.Constraint("Coincident", 42, 2, 43, 1))
sketch5.addConstraint(Sketcher.Constraint("Coincident", 43, 2, 44, 1))
sketch5.addConstraint(Sketcher.Constraint("Coincident", 44, 2, 45, 1))
sketch5.addConstraint(Sketcher.Constraint("Coincident", 45, 2, 38, 1))
sketch5.addConstraint(Sketcher.Constraint("Parallel", 16, 18))
sketch5.addConstraint(Sketcher.Constraint("Parallel", 19, 21))
sketch5.addConstraint(Sketcher.Constraint("Parallel", 17, 23))
sketch5.addConstraint(Sketcher.Constraint("Parallel", 22, 24))
sketch5.addConstraint(Sketcher.Constraint("Parallel", 20, 26))
sketch5.addConstraint(Sketcher.Constraint("Parallel", 25, 27))
sketch5.addConstraint(Sketcher.Constraint("Parallel", 23, 29))
sketch5.addConstraint(Sketcher.Constraint("Parallel", 32, 34))
sketch5.addConstraint(Sketcher.Constraint("Parallel", 34, 36))
sketch5.addConstraint(Sketcher.Constraint("Parallel", 41, 43))
sketch5.addConstraint(Sketcher.Constraint("Parallel", 39, 45))
sketch5.addConstraint(Sketcher.Constraint("Horizontal", 19, 2, 29, 2))
sketch5.addConstraint(Sketcher.Constraint("Equal", 16, 18))
sketch5.addConstraint(Sketcher.Constraint("Equal", 19, 21))
sketch5.addConstraint(Sketcher.Constraint("Equal", 17, 23))
sketch5.addConstraint(Sketcher.Constraint("Equal", 22, 24))
sketch5.addConstraint(Sketcher.Constraint("Equal", 23, 29))
sketch5.addConstraint(Sketcher.Constraint("Equal", 32, 34))
sketch5.addConstraint(Sketcher.Constraint("Equal", 34, 36))
sketch5.addConstraint(Sketcher.Constraint("Equal", 41, 43))
sketch5.addConstraint(Sketcher.Constraint("Equal", 39, 45))
sketch5.addConstraint(Sketcher.Constraint("DistanceX", 16, 2, 17, 2, 3.0))
sketch5.addConstraint(Sketcher.Constraint("DistanceX", 30, 2, 32, 2, 0.25))
sketch5.addConstraint(Sketcher.Constraint("DistanceX", -1, 1, 39, 2, 3.721999))
sketch5.addConstraint(Sketcher.Constraint("DistanceY", 44, 2, 40, 2, 1.125))
sketch5.addConstraint(Sketcher.Constraint("DistanceX", -1, 1, 30, 2, 4.197801))
sketch5.addConstraint(Sketcher.Constraint("DistanceY", 45, 2, -1, 1, 6.988299))
sketch5.addConstraint(Sketcher.Constraint("DistanceX", 19, 2, 17, 2, 0.3125))
sketch5.addConstraint(Sketcher.Constraint("DistanceX", 21, 2, 22, 2, 0.998798))
sketch5.addConstraint(Sketcher.Constraint("DistanceX", 20, 2, 22, 2, 2.313702))
sketch5.addConstraint(Sketcher.Constraint("DistanceY", 20, 2, 30, 2, 0.438702))
sketch5.addConstraint(Sketcher.Constraint("DistanceX", 34, 2, 37, 2, 0.498798))
sketch5.addConstraint(Sketcher.Constraint("DistanceX", 38, 2, 39, 2, 0.563702))
sketch5.addConstraint(Sketcher.Constraint("DistanceY", 43, 2, 33, 2, 2.251202))
sketch5.addConstraint(Sketcher.Constraint("Distance", 16, 1.15717))
sketch5.addConstraint(Sketcher.Constraint("Distance", 17, 5.997711))
sketch5.addConstraint(Sketcher.Constraint("Distance", 19, 2.62995))
sketch5.addConstraint(Sketcher.Constraint("Distance", 30, 1.129741))
sketch5.addConstraint(Sketcher.Constraint("Distance", 32, 1.846971))
sketch5.addConstraint(Sketcher.Constraint("Distance", 42, 1.158812))
sketch5.addConstraint(Sketcher.Constraint("Distance", 44, 1.092022))
sketch5.addConstraint(Sketcher.Constraint("DistanceX", 18, 2, -1, 1, 0.72467))
sketch5.addConstraint(Sketcher.Constraint("DistanceY", -1, 1, 18, 2, 3.83622))
sketch5.addConstraint(Sketcher.Constraint("DistanceY", -1, 1, 20, 2, 0.55497))
sketch5.addConstraint(Sketcher.Constraint("DistanceX", -1, 1, 21, 2, 1.012109))
sketch5.addConstraint(Sketcher.Constraint("DistanceY", -1, 1, 22, 2, 2.255691))
sketch5.addConstraint(Sketcher.Constraint("DistanceX", 25, 2, -1, 1, 0.85568))
sketch5.addConstraint(Sketcher.Constraint("DistanceY", 25, 2, -1, 1, 0.401761))
sketch5.addConstraint(Sketcher.Constraint("DistanceX", -1, 1, 31, 2, 2.848042))
sketch5.addConstraint(Sketcher.Constraint("DistanceY", 31, 2, -1, 1, 1.344069))
sketch5.addConstraint(Sketcher.Constraint("DistanceX", -1, 1, 37, 2, 2.797561))
sketch5.addConstraint(Sketcher.Constraint("DistanceY", 40, 2, -1, 1, 4.88854))
sketch5.addConstraint(Sketcher.Constraint("DistanceX", -1, 1, 41, 2, 7.07897))
sketch5.addConstraint(Sketcher.Constraint("DistanceY", 41, 2, -1, 1, 0.66979))
sketch5.addConstraint(Sketcher.Constraint("DistanceX", -1, 1, 44, 2, 6.592191))
sketch5.addConstraint(Sketcher.Constraint("DistanceY", 33, 2, 32, 2, 0.949519))
sketch5.addConstraint(Sketcher.Constraint("DistanceX", 35, 2, 34, 2, 0.543269))
sketch5.addConstraint(Sketcher.Constraint("DistanceY", 28, 2, 35, 2, 0.399038))
sketch5.addConstraint(Sketcher.Constraint("DistanceY", 37, 2, 35, 2, 1.887019))
sketch5.addConstraint(Sketcher.Constraint("DistanceY", 38, 2, 35, 2, 2.094952))
pocket2 = body.newObject("PartDesign::Pocket", "Pocket001")
pocket2.Profile = sketch5
pocket2.Length = 1
pocket2.Reversed = True

doc.recompute()
